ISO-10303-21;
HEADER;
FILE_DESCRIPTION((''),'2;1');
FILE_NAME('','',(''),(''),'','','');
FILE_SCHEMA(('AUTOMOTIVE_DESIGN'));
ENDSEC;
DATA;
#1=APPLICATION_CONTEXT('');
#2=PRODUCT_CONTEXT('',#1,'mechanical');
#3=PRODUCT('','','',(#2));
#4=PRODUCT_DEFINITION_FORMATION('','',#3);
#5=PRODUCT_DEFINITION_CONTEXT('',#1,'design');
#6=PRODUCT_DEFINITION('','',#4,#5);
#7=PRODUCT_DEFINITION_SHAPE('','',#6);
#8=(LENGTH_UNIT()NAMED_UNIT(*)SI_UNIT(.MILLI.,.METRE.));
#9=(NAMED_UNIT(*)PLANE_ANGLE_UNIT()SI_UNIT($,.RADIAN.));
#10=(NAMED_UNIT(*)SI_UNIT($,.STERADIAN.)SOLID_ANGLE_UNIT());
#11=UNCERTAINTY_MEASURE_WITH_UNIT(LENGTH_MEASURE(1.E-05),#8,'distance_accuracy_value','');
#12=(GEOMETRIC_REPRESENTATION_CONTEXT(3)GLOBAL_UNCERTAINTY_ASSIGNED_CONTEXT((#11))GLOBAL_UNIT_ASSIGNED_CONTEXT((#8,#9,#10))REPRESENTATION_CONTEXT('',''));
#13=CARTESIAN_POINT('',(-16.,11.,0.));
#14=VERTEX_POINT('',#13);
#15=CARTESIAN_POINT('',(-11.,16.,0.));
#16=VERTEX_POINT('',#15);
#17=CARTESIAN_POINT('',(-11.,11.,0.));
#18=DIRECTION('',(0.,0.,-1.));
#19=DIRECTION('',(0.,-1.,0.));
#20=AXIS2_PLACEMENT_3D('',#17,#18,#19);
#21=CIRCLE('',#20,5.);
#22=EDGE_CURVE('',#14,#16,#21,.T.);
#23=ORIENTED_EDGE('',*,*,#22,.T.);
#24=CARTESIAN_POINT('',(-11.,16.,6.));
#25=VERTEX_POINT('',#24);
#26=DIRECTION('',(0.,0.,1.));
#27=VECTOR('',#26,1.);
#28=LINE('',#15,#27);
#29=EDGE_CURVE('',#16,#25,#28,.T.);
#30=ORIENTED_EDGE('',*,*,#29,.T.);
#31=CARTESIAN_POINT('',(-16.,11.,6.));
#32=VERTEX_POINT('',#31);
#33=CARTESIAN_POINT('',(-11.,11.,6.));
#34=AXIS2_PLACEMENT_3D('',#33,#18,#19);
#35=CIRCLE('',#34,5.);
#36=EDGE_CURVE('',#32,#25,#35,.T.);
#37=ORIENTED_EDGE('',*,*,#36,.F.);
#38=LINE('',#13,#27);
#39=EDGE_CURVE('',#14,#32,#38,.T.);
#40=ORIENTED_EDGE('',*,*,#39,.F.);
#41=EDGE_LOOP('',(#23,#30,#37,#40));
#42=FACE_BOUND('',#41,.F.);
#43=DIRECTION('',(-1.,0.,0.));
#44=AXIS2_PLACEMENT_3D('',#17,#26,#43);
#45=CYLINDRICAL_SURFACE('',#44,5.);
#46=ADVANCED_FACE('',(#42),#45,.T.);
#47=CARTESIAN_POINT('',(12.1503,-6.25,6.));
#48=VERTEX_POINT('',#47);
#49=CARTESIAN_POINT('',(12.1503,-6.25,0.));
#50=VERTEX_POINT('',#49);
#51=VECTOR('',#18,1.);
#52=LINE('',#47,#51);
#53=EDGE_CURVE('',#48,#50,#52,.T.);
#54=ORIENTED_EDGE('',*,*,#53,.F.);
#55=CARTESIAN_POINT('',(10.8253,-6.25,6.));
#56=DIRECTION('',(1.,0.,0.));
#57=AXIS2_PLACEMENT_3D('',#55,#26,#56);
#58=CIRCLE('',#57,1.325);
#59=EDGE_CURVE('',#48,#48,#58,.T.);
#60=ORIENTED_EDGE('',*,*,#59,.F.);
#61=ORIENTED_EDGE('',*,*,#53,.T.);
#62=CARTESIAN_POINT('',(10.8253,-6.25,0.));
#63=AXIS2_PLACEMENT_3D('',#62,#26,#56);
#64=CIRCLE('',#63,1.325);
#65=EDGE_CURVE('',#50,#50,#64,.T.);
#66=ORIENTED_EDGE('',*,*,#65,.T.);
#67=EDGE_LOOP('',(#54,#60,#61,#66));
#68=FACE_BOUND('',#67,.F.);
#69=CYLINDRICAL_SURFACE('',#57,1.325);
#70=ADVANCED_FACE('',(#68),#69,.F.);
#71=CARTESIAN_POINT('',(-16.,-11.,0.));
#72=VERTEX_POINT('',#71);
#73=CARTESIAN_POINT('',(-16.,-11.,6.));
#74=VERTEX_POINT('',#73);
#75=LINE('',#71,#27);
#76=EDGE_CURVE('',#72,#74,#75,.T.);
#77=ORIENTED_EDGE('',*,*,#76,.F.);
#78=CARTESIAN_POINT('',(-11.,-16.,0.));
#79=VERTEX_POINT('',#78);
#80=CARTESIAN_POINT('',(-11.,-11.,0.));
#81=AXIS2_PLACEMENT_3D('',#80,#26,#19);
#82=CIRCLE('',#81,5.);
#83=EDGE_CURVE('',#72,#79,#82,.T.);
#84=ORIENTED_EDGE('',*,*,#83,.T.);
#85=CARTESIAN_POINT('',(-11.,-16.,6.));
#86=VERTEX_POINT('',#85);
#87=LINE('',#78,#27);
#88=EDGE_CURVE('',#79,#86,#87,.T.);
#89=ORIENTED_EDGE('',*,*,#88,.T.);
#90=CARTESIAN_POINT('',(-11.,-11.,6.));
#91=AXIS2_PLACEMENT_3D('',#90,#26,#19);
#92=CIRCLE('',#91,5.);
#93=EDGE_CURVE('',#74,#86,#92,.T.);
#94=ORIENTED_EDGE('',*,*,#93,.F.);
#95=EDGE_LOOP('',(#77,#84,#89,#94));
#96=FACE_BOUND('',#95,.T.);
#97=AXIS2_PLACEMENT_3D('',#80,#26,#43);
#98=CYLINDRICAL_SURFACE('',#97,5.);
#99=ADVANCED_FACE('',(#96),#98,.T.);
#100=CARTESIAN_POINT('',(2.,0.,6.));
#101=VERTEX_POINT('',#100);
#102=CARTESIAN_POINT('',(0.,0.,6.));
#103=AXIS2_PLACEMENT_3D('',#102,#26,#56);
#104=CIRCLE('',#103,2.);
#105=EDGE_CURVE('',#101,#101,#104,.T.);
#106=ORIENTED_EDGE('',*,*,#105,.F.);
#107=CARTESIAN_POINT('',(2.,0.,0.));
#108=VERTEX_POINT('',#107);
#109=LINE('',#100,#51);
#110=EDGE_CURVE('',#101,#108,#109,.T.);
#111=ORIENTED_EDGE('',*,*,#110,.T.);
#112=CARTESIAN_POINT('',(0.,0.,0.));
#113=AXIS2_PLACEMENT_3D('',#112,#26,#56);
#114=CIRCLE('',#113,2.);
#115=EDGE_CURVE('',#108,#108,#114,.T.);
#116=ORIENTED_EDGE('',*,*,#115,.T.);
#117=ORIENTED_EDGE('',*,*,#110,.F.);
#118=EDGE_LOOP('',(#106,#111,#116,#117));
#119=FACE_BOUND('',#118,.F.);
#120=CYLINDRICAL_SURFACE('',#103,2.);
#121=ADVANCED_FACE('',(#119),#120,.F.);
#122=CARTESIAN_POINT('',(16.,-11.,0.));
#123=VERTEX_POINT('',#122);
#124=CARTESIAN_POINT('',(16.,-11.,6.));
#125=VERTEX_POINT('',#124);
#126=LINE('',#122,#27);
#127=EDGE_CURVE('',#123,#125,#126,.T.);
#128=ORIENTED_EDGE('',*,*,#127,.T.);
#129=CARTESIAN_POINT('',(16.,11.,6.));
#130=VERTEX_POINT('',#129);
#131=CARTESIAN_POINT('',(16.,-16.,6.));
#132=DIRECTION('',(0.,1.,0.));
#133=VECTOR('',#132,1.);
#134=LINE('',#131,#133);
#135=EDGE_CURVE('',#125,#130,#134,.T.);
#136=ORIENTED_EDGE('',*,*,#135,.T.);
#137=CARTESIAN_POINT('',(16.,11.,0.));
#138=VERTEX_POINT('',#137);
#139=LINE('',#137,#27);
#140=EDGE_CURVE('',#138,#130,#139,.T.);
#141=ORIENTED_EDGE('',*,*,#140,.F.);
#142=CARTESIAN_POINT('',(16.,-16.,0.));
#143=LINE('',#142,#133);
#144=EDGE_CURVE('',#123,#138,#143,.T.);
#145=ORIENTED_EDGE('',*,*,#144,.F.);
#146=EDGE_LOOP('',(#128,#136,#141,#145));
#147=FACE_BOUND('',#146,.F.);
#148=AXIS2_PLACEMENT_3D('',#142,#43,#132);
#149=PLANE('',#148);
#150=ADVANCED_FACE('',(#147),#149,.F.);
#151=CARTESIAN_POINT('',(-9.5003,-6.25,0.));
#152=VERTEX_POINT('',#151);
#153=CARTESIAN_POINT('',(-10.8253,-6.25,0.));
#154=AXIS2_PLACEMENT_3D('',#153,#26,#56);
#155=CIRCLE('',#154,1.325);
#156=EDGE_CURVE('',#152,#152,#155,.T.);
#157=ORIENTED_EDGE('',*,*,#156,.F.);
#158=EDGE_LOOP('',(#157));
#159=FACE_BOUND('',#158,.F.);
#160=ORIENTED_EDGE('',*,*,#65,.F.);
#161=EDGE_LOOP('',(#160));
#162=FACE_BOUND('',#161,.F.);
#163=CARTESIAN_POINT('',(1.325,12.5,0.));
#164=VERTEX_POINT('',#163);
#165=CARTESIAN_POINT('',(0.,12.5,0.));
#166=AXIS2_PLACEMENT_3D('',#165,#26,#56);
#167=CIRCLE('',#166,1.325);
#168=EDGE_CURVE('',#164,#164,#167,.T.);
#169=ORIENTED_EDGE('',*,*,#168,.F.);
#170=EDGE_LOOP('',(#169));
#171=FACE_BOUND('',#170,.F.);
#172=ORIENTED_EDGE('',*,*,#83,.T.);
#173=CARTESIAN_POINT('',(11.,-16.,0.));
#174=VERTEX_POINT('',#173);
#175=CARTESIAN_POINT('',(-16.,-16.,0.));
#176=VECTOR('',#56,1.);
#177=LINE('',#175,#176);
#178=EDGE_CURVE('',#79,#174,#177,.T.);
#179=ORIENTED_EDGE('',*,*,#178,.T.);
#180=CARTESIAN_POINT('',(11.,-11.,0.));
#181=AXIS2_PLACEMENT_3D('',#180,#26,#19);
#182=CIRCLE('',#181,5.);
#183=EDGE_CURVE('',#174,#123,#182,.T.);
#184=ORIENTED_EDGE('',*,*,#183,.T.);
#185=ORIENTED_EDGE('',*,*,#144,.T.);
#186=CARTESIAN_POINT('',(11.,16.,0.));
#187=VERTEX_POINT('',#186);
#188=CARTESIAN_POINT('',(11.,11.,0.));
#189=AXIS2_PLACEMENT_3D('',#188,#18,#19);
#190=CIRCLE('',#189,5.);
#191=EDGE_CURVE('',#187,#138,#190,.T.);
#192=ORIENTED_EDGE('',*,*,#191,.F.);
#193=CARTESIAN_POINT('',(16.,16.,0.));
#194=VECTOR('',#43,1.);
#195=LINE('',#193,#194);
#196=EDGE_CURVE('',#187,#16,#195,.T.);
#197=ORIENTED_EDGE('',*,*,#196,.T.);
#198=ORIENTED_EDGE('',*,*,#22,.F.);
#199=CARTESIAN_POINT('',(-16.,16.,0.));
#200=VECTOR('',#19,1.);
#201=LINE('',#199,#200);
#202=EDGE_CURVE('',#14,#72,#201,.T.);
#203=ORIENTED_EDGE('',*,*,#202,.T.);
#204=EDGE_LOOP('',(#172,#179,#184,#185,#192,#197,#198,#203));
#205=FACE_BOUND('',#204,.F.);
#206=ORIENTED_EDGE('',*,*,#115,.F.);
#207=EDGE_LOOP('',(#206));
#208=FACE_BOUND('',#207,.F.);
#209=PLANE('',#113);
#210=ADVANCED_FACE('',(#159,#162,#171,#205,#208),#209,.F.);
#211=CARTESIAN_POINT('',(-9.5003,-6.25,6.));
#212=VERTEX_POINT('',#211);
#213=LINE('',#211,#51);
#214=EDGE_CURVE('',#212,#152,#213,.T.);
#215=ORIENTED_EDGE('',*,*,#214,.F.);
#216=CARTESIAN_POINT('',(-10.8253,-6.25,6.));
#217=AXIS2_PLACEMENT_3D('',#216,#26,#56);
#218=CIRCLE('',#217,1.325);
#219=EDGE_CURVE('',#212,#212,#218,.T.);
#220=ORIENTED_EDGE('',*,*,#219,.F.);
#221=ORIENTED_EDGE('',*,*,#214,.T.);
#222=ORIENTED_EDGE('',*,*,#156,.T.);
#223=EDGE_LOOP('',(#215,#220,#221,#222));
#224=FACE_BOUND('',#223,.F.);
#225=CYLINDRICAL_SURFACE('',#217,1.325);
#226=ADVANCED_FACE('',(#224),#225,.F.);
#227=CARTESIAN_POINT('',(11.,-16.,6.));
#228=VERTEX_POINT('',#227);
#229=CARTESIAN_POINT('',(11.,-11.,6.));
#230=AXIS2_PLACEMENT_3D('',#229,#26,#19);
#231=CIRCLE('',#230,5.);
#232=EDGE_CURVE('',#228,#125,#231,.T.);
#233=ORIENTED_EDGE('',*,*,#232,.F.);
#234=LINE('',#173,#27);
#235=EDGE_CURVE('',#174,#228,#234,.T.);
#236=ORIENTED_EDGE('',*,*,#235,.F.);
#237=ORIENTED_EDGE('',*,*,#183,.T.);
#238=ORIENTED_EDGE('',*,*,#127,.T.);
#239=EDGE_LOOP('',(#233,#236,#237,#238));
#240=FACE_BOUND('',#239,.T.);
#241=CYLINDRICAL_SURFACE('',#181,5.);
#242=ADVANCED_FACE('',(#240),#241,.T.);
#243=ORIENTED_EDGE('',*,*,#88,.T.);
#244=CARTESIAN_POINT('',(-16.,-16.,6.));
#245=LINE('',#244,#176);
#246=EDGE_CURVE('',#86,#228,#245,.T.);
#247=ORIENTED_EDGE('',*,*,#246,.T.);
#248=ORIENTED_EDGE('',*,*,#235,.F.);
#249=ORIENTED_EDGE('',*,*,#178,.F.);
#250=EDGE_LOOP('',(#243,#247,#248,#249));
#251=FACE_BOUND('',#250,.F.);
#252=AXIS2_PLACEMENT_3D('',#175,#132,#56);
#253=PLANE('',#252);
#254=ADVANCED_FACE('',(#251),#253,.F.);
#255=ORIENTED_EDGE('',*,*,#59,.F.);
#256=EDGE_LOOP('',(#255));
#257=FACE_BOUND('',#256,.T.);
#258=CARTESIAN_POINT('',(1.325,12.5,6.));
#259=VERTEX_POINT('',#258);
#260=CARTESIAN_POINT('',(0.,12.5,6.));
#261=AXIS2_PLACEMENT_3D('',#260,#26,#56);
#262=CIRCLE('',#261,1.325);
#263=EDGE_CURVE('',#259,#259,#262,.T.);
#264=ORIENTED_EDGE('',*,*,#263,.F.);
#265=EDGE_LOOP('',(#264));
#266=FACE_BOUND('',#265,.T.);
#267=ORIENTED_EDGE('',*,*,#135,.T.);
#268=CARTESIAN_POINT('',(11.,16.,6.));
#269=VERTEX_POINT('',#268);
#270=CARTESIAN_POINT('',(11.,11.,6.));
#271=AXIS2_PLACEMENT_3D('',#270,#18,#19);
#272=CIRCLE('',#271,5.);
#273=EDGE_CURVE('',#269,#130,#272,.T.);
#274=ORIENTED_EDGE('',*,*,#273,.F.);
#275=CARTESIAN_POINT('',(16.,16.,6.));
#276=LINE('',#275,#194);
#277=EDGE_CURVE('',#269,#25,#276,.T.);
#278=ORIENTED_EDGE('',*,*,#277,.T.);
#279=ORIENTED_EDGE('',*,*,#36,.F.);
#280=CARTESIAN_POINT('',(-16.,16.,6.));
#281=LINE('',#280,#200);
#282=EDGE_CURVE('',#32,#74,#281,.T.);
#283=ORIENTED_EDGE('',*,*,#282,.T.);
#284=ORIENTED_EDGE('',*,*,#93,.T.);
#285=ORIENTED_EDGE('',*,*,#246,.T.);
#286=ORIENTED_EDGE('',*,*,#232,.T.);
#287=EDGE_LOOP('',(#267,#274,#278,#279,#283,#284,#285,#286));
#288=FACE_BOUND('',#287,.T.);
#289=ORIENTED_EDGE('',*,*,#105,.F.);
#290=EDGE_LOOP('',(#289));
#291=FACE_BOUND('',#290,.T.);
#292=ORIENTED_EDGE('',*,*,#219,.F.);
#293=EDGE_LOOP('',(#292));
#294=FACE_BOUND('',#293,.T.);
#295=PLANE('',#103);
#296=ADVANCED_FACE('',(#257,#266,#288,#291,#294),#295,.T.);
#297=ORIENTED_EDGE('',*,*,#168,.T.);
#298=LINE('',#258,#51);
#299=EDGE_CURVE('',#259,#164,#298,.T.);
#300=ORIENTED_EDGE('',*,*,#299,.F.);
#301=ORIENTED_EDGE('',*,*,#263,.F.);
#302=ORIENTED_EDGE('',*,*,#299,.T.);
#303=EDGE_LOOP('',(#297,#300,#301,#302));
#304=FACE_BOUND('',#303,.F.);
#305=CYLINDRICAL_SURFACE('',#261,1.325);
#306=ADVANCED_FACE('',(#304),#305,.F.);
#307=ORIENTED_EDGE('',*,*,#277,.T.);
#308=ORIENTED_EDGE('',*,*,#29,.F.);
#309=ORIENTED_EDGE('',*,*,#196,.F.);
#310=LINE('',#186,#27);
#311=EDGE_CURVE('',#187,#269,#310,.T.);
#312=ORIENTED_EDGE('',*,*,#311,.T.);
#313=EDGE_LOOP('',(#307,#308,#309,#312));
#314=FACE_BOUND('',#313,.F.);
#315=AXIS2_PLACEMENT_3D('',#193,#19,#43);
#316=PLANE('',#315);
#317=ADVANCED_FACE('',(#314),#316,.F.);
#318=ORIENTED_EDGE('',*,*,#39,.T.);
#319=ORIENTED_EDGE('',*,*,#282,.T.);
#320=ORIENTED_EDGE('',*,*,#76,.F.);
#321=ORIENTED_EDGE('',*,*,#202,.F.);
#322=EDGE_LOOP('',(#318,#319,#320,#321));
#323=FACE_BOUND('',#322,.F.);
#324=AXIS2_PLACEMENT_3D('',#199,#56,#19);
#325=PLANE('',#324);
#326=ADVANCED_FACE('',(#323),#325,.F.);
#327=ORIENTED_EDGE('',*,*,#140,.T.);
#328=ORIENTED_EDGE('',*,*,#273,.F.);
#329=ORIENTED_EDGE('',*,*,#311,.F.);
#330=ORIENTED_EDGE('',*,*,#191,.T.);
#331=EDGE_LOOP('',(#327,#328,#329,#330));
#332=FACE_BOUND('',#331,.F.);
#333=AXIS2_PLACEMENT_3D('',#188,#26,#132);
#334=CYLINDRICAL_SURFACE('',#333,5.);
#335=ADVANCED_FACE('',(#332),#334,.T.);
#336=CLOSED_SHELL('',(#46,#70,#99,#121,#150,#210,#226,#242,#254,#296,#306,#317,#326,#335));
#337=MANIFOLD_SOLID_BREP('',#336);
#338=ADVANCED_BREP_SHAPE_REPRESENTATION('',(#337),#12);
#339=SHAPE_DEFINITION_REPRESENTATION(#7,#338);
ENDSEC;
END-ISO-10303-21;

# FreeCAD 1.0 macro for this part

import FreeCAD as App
import Part
import Sketcher


def edges_at(feature, points):
    """Names of the edges that pass closest to the given points."""
    edges = feature.Shape.Edges
    near = lambda p: min(range(len(edges)), key=lambda i: edges[i].distToShape(Part.Vertex(*p))[0])
    return sorted({f"Edge{near(p) + 1}" for p in points})


def add_polygon(sketch, points):
    """Adds a closed chain of lines whose ends are joined by coincident constraints."""
    first, n = sketch.GeometryCount, len(points)
    for a, b in zip(points, points[1:] + points[:1]):
        sketch.addGeometry(Part.LineSegment(App.Vector(*a, 0), App.Vector(*b, 0)), False)
    for i in range(n):
        sketch.addConstraint(Sketcher.Constraint("Coincident", first + i, 2, first + (i + 1) % n, 1))

doc = App.newDocument("Part")
body = doc.addObject("PartDesign::Body", "Body")

# Sketch on XY plane
sketch1 = body.newObject("Sketcher::SketchObject", "Sketch")
sketch1.AttachmentSupport = (doc.getObject("XY_Plane"), [""])
sketch1.MapMode = "FlatFace"
add_polygon(sketch1, [(-16, 16), (-16, -16), (16, -16), (16, 16)])  # lines 0-3
sketch1.addConstraint(Sketcher.Constraint("Vertical", 0))
sketch1.addConstraint(Sketcher.Constraint("Horizontal", 1))
sketch1.addConstraint(Sketcher.Constraint("Vertical", 2))
sketch1.addConstraint(Sketcher.Constraint("Horizontal", 3))
sketch1.addConstraint(Sketcher.Constraint("Symmetric", 0, 2, 2, 2, -1, 1))
sketch1.addConstraint(Sketcher.Constraint("Equal", 3, 0))
sketch1.addConstraint(Sketcher.Constraint("DistanceX", 1, 1, 1, 2, 32.0))
pad1 = body.newObject("PartDesign::Pad", "Pad")
pad1.Profile = sketch1
pad1.Length = 6

# Sketch on XY plane
sketch2 = body.newObject("Sketcher::SketchObject", "Sketch001")
sketch2.AttachmentSupport = (doc.getObject("XY_Plane"), [""])
sketch2.MapMode = "FlatFace"
sketch2.AttachmentOffset = App.Placement(App.Vector(0, 0, 6), App.Rotation())
sketch2.addGeometry(Part.Circle(App.Vector(0, 0, 0), App.Vector(0, 0, 1), 2), False)
sketch2.addConstraint(Sketcher.Constraint("Coincident", 0, 3, -1, 1))
sketch2.addConstraint(Sketcher.Constraint("Diameter", 0, 4.0))
pocket1 = body.newObject("PartDesign::Pocket", "Pocket")
pocket1.Profile = sketch2
pocket1.Length = 6
doc.recompute()

fillet = body.newObject("PartDesign::Fillet", "Fillet")
fillet.Base = (pocket1, edges_at(pocket1, [
    (16, 16, 3),
    (16, -16, 3),
    (-16, -16, 3),
    (-16, 16, 3),
]))
fillet.Radius = 5

# Sketch on XY plane
sketch3 = body.newObject("Sketcher::SketchObject", "Sketch002")
sketch3.AttachmentSupport = (doc.getObject("XY_Plane"), [""])
sketch3.MapMode = "FlatFace"
sketch3.AttachmentOffset = App.Placement(App.Vector(0, 0, 6), App.Rotation())
sketch3.addGeometry(Part.Circle(App.Vector(0, 12.5, 0), App.Vector(0, 0, 1), 1.3), False)
sketch3.addGeometry(Part.Circle(App.Vector(10.8, -6.2, 0), App.Vector(0, 0, 1), 1.3), False)
sketch3.addGeometry(Part.Circle(App.Vector(-10.8, -6.2, 0), App.Vector(0, 0, 1), 1.3), False)
sketch3.addConstraint(Sketcher.Constraint("Equal", 0, 1))
sketch3.addConstraint(Sketcher.Constraint("Equal", 1, 2))
sketch3.addConstraint(Sketcher.Constraint("Symmetric", 1, 3, 2, 3, -2))
sketch3.addConstraint(Sketcher.Constraint("PointOnObject", 0, 3, -2))
sketch3.addConstraint(Sketcher.Constraint("Diameter", 0, 2.65))
sketch3.addConstraint(Sketcher.Constraint("DistanceY", -1, 1, 0, 3, 12.5))
sketch3.addConstraint(Sketcher.Constraint("DistanceY", 1, 3, -1, 1, 6.25))
sketch3.addConstraint(Sketcher.Constraint("DistanceX", -1, 1, 1, 3, 10.8253))
pocket2 = body.newObject("PartDesign::Pocket", "Pocket001")
pocket2.Profile = sketch3
pocket2.Type = "ThroughAll"

doc.recompute()
